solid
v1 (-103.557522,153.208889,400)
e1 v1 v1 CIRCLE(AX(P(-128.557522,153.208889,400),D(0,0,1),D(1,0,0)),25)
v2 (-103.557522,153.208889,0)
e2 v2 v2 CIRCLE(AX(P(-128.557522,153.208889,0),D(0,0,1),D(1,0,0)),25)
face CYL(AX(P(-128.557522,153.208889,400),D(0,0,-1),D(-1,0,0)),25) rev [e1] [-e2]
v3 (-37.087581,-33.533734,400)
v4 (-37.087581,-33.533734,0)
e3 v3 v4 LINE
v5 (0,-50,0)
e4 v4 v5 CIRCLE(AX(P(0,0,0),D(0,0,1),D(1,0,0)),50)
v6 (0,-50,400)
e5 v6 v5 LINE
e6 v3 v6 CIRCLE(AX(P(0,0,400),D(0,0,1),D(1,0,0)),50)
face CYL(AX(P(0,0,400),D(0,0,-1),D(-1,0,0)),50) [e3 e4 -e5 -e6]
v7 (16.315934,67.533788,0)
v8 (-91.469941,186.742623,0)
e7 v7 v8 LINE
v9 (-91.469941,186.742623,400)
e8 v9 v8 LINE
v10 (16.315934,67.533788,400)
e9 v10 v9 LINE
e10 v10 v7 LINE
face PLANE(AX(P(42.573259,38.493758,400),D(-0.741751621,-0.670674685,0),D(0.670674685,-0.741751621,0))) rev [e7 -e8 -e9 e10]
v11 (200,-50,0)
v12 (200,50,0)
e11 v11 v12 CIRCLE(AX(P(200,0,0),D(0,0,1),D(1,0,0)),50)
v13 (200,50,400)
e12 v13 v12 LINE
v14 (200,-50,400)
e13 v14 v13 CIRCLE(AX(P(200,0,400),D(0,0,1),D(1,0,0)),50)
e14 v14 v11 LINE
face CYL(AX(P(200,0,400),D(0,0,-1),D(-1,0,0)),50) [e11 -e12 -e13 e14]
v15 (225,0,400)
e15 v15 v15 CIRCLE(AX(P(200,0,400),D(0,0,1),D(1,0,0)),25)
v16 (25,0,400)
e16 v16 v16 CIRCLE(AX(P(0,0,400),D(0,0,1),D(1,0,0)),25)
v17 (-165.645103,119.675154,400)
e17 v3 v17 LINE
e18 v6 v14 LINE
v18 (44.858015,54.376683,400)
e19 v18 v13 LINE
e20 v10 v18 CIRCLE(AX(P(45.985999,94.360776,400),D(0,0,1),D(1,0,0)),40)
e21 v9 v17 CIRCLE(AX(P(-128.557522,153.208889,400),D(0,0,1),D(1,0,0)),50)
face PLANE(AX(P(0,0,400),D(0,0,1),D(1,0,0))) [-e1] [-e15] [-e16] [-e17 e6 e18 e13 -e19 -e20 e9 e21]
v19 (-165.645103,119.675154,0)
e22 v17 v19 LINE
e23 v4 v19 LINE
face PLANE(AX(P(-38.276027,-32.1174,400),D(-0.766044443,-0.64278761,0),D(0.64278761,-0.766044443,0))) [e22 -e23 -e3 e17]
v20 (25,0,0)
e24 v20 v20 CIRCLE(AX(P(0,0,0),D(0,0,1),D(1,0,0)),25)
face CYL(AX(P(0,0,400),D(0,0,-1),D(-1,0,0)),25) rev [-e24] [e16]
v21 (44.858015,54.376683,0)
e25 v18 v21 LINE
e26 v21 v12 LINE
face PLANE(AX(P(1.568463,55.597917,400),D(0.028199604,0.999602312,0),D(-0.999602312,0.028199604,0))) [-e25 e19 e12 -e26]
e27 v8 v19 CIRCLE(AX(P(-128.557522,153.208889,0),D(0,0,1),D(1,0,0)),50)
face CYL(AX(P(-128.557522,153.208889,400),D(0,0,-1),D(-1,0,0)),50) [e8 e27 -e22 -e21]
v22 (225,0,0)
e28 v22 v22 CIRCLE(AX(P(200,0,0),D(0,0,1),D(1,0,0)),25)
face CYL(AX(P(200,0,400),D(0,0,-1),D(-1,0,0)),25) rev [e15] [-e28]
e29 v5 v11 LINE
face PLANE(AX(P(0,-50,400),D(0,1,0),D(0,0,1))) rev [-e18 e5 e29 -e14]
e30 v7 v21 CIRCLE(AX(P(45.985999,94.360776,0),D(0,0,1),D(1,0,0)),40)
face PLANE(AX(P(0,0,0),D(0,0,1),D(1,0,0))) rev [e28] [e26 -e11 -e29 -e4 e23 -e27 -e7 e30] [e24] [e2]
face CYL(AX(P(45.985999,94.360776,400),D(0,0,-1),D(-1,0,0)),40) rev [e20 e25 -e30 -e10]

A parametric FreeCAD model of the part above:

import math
import FreeCAD as App
import Part
import Sketcher
from FreeCAD import Vector
Q = App.Units.Quantity

doc = App.newDocument("Part")
params = doc.addObject("Spreadsheet::Sheet", "Params")
for row, (alias, value) in enumerate([
    ("sketch1_diameter", "50 mm"),
    ("sketch1_radius", "40 mm"),
    ("sketch1_radius2", "50 mm"),
    ("sketch1_width", "200 mm"),
    ("sketch1_length", "200 mm"),
    ("pad1_length", "400 mm"),
], start=1):
    params.set(f"A{row}", alias)
    params.set(f"B{row}", "=" + value)
    params.setAlias(f"B{row}", alias)

body = doc.addObject("PartDesign::Body", "Body")

# Sketch on XY plane
sketch1 = body.newObject("Sketcher::SketchObject", "Sketch")
sketch1.AttachmentSupport = (doc.getObject("XY_Plane"), [""])
sketch1.MapMode = "FlatFace"
sketch1.addGeometry(Part.ArcOfCircle(Part.Circle(Vector(46, 94, 0), Vector(0, 0, 1), 40), math.radians(-138), math.radians(-92)), False)
sketch1.addGeometry(Part.LineSegment(Vector(16, 68, 0), Vector(-91, 187, 0)), False)
sketch1.addGeometry(Part.ArcOfCircle(Part.Circle(Vector(-129, 153, 0), Vector(0, 0, 1), 50), math.radians(42), math.radians(222)), False)
sketch1.addGeometry(Part.LineSegment(Vector(-166, 120, 0), Vector(-37, -34, 0)), False)
sketch1.addGeometry(Part.ArcOfCircle(Part.Circle(Vector(0, 0, 0), Vector(0, 0, 1), 50), math.radians(-138), math.radians(-90)), False)
sketch1.addGeometry(Part.LineSegment(Vector(0, -50, 0), Vector(200, -50, 0)), False)
sketch1.addGeometry(Part.ArcOfCircle(Part.Circle(Vector(200, 0, 0), Vector(0, 0, 1), 50), math.radians(-90), math.radians(90)), False)
sketch1.addGeometry(Part.LineSegment(Vector(200, 50, 0), Vector(45, 54, 0)), False)
sketch1.addGeometry(Part.Circle(Vector(200, 0, 0), Vector(0, 0, 1), 25), False)
sketch1.addGeometry(Part.Circle(Vector(0, 0, 0), Vector(0, 0, 1), 25), False)
sketch1.addGeometry(Part.Circle(Vector(-129, 153, 0), Vector(0, 0, 1), 25), False)
sketch1.addConstraint(Sketcher.Constraint("Tangent", 0, 1, 1, 1))
sketch1.addConstraint(Sketcher.Constraint("Tangent", 1, 2, 2, 1))
sketch1.addConstraint(Sketcher.Constraint("Coincident", 2, 2, 3, 1))
sketch1.addConstraint(Sketcher.Constraint("Coincident", 3, 2, 4, 1))
sketch1.addConstraint(Sketcher.Constraint("Tangent", 4, 2, 5, 1))
sketch1.addConstraint(Sketcher.Constraint("Tangent", 5, 2, 6, 1))
sketch1.addConstraint(Sketcher.Constraint("Coincident", 6, 2, 7, 1))
sketch1.addConstraint(Sketcher.Constraint("Tangent", 7, 2, 0, 2))
sketch1.addConstraint(Sketcher.Constraint("Horizontal", 5))
sketch1.addConstraint(Sketcher.Constraint("Coincident", 4, 3, -1, 1))
sketch1.addConstraint(Sketcher.Constraint("Coincident", 9, 3, -1, 1))
sketch1.addConstraint(Sketcher.Constraint("Coincident", 8, 3, 6, 3))
sketch1.addConstraint(Sketcher.Constraint("Coincident", 10, 3, 2, 3))
sketch1.addConstraint(Sketcher.Constraint("Equal", 2, 4))
sketch1.addConstraint(Sketcher.Constraint("Equal", 4, 6))
sketch1.addConstraint(Sketcher.Constraint("Equal", 8, 9))
sketch1.addConstraint(Sketcher.Constraint("Equal", 9, 10))
sketch1.addConstraint(Sketcher.Constraint("Vertical", 5, 2, 6, 2))
sketch1.addConstraint(Sketcher.Constraint("Diameter", 8, 50.0))
sketch1.addConstraint(Sketcher.Constraint("Radius", 0, 40.0))
sketch1.addConstraint(Sketcher.Constraint("Radius", 2, 50.0))
sketch1.addConstraint(Sketcher.Constraint("DistanceX", 5, 1, 5, 2, 200.0))
sketch1.addConstraint(Sketcher.Constraint("Angle", 3, Q("-50 deg")))
sketch1.addConstraint(Sketcher.Constraint("Distance", 3, 200.0))
sketch1.addConstraint(Sketcher.Constraint("DistanceX", -1, 1, 0, 3, 45.985999))
sketch1.addConstraint(Sketcher.Constraint("DistanceY", 0, 1, 10, 3, 85.675101))
sketch1.addConstraint(Sketcher.Constraint("DistanceX", 2, 3, -1, 1, 128.557522))
sketch1.addConstraint(Sketcher.Constraint("DistanceX", 3, 2, -1, 1, 37.087581))
sketch1.setExpression("Constraints[18]", "Params.sketch1_diameter")
sketch1.setExpression("Constraints[19]", "Params.sketch1_radius")
sketch1.setExpression("Constraints[20]", "Params.sketch1_radius2")
sketch1.setExpression("Constraints[21]", "Params.sketch1_width")
sketch1.setExpression("Constraints[23]", "Params.sketch1_length")
pad1 = body.newObject("PartDesign::Pad", "Pad")
pad1.Profile = sketch1
pad1.setExpression("Length", "Params.pad1_length")

doc.recompute()
